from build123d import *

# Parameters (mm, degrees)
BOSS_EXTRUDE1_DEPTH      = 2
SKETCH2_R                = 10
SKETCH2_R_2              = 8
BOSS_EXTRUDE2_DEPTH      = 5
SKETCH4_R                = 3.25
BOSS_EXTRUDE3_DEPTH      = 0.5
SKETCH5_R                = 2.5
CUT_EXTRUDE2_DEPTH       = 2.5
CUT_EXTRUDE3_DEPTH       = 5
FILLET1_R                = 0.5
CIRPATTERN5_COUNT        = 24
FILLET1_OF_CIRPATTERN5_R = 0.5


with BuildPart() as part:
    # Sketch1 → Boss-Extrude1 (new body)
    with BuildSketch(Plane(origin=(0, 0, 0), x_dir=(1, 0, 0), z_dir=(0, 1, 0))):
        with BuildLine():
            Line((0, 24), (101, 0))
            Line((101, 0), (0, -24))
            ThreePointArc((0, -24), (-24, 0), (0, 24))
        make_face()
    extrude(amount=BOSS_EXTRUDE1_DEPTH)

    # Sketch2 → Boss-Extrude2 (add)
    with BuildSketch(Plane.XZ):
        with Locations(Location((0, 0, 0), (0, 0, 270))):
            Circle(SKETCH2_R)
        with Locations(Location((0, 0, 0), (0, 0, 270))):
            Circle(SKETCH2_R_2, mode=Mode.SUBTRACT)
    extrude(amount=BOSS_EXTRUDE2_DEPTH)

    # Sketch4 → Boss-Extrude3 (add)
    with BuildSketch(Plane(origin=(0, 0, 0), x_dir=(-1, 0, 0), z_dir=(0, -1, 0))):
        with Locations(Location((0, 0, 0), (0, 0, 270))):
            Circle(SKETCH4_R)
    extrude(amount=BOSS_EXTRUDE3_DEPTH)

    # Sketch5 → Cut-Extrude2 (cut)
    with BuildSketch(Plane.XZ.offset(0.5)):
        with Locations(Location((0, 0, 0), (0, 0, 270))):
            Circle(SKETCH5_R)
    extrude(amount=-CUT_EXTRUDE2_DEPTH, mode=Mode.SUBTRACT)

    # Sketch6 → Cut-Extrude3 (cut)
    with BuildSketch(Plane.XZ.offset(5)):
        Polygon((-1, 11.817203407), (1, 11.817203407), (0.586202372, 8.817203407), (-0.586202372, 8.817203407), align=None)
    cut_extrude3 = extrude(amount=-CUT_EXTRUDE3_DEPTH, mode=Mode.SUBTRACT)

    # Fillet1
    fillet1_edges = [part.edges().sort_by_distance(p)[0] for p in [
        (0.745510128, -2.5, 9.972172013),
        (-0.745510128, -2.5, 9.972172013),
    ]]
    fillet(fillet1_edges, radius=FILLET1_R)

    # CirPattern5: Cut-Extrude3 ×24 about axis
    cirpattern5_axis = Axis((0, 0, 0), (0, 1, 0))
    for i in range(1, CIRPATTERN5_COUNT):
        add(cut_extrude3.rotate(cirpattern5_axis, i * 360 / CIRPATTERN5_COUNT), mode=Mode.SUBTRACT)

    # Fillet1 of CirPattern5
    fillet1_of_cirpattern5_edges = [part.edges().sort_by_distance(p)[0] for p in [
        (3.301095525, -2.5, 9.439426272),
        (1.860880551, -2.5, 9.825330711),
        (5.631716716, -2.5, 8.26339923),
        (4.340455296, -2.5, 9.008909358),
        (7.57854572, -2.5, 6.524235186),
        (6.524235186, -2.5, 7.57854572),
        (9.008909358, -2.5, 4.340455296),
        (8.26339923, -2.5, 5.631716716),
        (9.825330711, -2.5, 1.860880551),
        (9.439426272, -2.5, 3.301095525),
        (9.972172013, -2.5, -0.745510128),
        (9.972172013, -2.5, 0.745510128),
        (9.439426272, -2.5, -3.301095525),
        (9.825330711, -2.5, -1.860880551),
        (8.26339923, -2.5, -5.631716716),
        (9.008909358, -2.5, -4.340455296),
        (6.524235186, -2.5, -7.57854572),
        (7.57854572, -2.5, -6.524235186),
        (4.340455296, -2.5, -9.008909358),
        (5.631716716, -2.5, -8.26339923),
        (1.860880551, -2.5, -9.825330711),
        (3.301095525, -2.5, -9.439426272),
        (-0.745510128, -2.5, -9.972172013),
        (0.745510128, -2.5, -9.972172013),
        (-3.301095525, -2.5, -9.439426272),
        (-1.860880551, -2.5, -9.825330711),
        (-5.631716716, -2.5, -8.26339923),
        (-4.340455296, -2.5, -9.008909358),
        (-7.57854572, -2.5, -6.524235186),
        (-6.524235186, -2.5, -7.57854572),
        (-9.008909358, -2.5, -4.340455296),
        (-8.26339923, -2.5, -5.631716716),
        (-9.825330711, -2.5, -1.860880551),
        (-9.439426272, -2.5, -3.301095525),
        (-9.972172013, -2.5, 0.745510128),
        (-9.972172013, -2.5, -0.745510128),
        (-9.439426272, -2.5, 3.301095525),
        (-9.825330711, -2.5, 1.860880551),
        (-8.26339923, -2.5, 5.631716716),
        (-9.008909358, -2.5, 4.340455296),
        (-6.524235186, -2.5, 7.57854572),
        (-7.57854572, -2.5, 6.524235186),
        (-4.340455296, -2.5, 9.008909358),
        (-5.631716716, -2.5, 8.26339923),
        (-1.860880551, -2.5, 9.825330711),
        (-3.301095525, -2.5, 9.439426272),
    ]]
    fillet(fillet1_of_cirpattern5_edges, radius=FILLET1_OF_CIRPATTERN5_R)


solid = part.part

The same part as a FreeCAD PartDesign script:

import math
import FreeCAD as App
import Part
import Sketcher
Q = App.Units.Quantity


def edges_at(feature, points):
    """Names of the edges that pass closest to the given points."""
    edges = feature.Shape.Edges
    near = lambda p: min(range(len(edges)), key=lambda i: edges[i].distToShape(Part.Vertex(*p))[0])
    return sorted({f"Edge{near(p) + 1}" for p in points})


def add_polygon(sketch, points):
    """Adds a closed chain of lines whose ends are joined by coincident constraints."""
    first, n = sketch.GeometryCount, len(points)
    for a, b in zip(points, points[1:] + points[:1]):
        sketch.addGeometry(Part.LineSegment(App.Vector(*a, 0), App.Vector(*b, 0)), False)
    for i in range(n):
        sketch.addConstraint(Sketcher.Constraint("Coincident", first + i, 2, first + (i + 1) % n, 1))

doc = App.newDocument("Part")
body = doc.addObject("PartDesign::Body", "Body")

# Sketch on XZ plane
sketch1 = body.newObject("Sketcher::SketchObject", "Sketch")
sketch1.AttachmentSupport = (doc.getObject("XZ_Plane"), [""])
sketch1.MapMode = "FlatFace"
sketch1.addGeometry([
    Part.LineSegment(App.Vector(101, 0, 0), App.Vector(0, -24, 0)),
    Part.ArcOfCircle(Part.Circle(App.Vector(0, 0, 0), App.Vector(0, 0, 1), 24), math.radians(90), math.radians(270)),
    Part.LineSegment(App.Vector(0, 24, 0), App.Vector(101, 0, 0)),
], False)
sketch1.addConstraint([
    Sketcher.Constraint("Coincident", 0, 2, 1, 2),
    Sketcher.Constraint("Coincident", 1, 1, 2, 1),
    Sketcher.Constraint("Coincident", 2, 2, 0, 1),
    Sketcher.Constraint("Coincident", 1, 3, -1, 1),
    Sketcher.Constraint("PointOnObject", 0, 2, -2),
    Sketcher.Constraint("PointOnObject", 1, 1, -2),
    Sketcher.Constraint("PointOnObject", 2, 2, -1),
    Sketcher.Constraint("Radius", 1, Q("24 mm")),
    Sketcher.Constraint("DistanceX", -1, 1, 2, 2, Q("101 mm")),
])
pad1 = body.newObject("PartDesign::Pad", "Pad")
pad1.Profile = sketch1
pad1.Length = 2
pad1.Reversed = True

# Sketch on XZ plane
sketch2 = body.newObject("Sketcher::SketchObject", "Sketch001")
sketch2.AttachmentSupport = (doc.getObject("XZ_Plane"), [""])
sketch2.MapMode = "FlatFace"
sketch2.addGeometry([
    Part.Circle(App.Vector(0, 0, 0), App.Vector(0, 0, 1), 10),
    Part.Circle(App.Vector(0, 0, 0), App.Vector(0, 0, 1), 8),
], False)
sketch2.addConstraint([
    Sketcher.Constraint("Coincident", 0, 3, -1, 1),
    Sketcher.Constraint("Coincident", 1, 3, -1, 1),
    Sketcher.Constraint("Diameter", 0, Q("20 mm")),
    Sketcher.Constraint("Diameter", 1, Q("16 mm")),
])
pad2 = body.newObject("PartDesign::Pad", "Pad001")
pad2.Profile = sketch2
pad2.Length = 5

# Sketch on XZ plane
sketch3 = body.newObject("Sketcher::SketchObject", "Sketch002")
sketch3.AttachmentSupport = (doc.getObject("XZ_Plane"), [""])
sketch3.MapMode = "FlatFace"
sketch3.addGeometry(Part.Circle(App.Vector(0, 0, 0), App.Vector(0, 0, 1), 3.2), False)
sketch3.addConstraint([
    Sketcher.Constraint("Coincident", 0, 3, -1, 1),
    Sketcher.Constraint("Diameter", 0, Q("6.5 mm")),
])
pad3 = body.newObject("PartDesign::Pad", "Pad002")
pad3.Profile = sketch3
pad3.Length = 0.5

# Sketch on XZ plane
sketch4 = body.newObject("Sketcher::SketchObject", "Sketch003")
sketch4.AttachmentSupport = (doc.getObject("XZ_Plane"), [""])
sketch4.MapMode = "FlatFace"
sketch4.AttachmentOffset = App.Placement(App.Vector(0, 0, 0.5), App.Rotation())
sketch4.addGeometry(Part.Circle(App.Vector(0, 0, 0), App.Vector(0, 0, 1), 2.5), False)
sketch4.addConstraint([
    Sketcher.Constraint("Coincident", 0, 3, -1, 1),
    Sketcher.Constraint("Diameter", 0, Q("5 mm")),
])
pocket1 = body.newObject("PartDesign::Pocket", "Pocket")
pocket1.Profile = sketch4
pocket1.Length = 2.5

# Sketch on XZ plane
sketch5 = body.newObject("Sketcher::SketchObject", "Sketch004")
sketch5.AttachmentSupport = (doc.getObject("XZ_Plane"), [""])
sketch5.MapMode = "FlatFace"
sketch5.AttachmentOffset = App.Placement(App.Vector(0, 0, 5), App.Rotation())
add_polygon(sketch5, [(1, 11.8), (-1, 11.8), (-0.6, 8.8), (0.6, 8.8)])  # lines 0-3
sketch5.addConstraint([
    Sketcher.Constraint("Horizontal", 0),
    Sketcher.Constraint("Horizontal", 2),
    Sketcher.Constraint("Equal", 1, 3),
    Sketcher.Constraint("DistanceX", 0, 2, 0, 1, Q("2 mm")),
    Sketcher.Constraint("DistanceX", 0, 2, -1, 1, Q("1 mm")),
    Sketcher.Constraint("DistanceY", 1, 2, 0, 2, Q("3 mm")),
    Sketcher.Constraint("DistanceX", 2, 1, 2, 2, Q("1.172405 mm")),
    Sketcher.Constraint("DistanceY", -1, 1, 0, 2, Q("11.817203 mm")),
])
pocket2 = body.newObject("PartDesign::Pocket", "Pocket001")
pocket2.Profile = sketch5
pocket2.Length = 5
doc.recompute()

fillet = body.newObject("PartDesign::Fillet", "Fillet")
fillet.Base = (pocket2, edges_at(pocket2, [(0.746, -2.5, 9.972), (-0.746, -2.5, 9.972)]))
fillet.Radius = 0.5
doc.recompute()

polarpattern = body.newObject("PartDesign::PolarPattern", "PolarPattern")
polarpattern.Originals = [pocket2]
polarpattern.Axis = (doc.getObject("Y_Axis"), [""])
polarpattern.Angle = 360
polarpattern.Occurrences = 24
body.Tip = polarpattern
doc.recompute()

fillet2 = body.newObject("PartDesign::Fillet", "Fillet001")
fillet2.Base = (polarpattern, edges_at(polarpattern, [
    (3.301, -2.5, 9.439),
    (1.861, -2.5, 9.825),
    (5.632, -2.5, 8.263),
    (4.34, -2.5, 9.009),
    (7.579, -2.5, 6.524),
    (6.524, -2.5, 7.579),
    (9.009, -2.5, 4.34),
    (8.263, -2.5, 5.632),
    (9.825, -2.5, 1.861),
    (9.439, -2.5, 3.301),
    (9.972, -2.5, -0.746),
    (9.972, -2.5, 0.746),
    (9.439, -2.5, -3.301),
    (9.825, -2.5, -1.861),
    (8.263, -2.5, -5.632),
    (9.009, -2.5, -4.34),
    (6.524, -2.5, -7.579),
    (7.579, -2.5, -6.524),
    (4.34, -2.5, -9.009),
    (5.632, -2.5, -8.263),
    (1.861, -2.5, -9.825),
    (3.301, -2.5, -9.439),
    (-0.746, -2.5, -9.972),
    (0.746, -2.5, -9.972),
    (-3.301, -2.5, -9.439),
    (-1.861, -2.5, -9.825),
    (-5.632, -2.5, -8.263),
    (-4.34, -2.5, -9.009),
    (-7.579, -2.5, -6.524),
    (-6.524, -2.5, -7.579),
    (-9.009, -2.5, -4.34),
    (-8.263, -2.5, -5.632),
    (-9.825, -2.5, -1.861),
    (-9.439, -2.5, -3.301),
    (-9.972, -2.5, 0.746),
    (-9.972, -2.5, -0.746),
    (-9.439, -2.5, 3.301),
    (-9.825, -2.5, 1.861),
    (-8.263, -2.5, 5.632),
    (-9.009, -2.5, 4.34),
    (-6.524, -2.5, 7.579),
    (-7.579, -2.5, 6.524),
    (-4.34, -2.5, 9.009),
    (-5.632, -2.5, 8.263),
    (-1.861, -2.5, 9.825),
    (-3.301, -2.5, 9.439),
]))
fillet2.Radius = 0.5

doc.recompute()
